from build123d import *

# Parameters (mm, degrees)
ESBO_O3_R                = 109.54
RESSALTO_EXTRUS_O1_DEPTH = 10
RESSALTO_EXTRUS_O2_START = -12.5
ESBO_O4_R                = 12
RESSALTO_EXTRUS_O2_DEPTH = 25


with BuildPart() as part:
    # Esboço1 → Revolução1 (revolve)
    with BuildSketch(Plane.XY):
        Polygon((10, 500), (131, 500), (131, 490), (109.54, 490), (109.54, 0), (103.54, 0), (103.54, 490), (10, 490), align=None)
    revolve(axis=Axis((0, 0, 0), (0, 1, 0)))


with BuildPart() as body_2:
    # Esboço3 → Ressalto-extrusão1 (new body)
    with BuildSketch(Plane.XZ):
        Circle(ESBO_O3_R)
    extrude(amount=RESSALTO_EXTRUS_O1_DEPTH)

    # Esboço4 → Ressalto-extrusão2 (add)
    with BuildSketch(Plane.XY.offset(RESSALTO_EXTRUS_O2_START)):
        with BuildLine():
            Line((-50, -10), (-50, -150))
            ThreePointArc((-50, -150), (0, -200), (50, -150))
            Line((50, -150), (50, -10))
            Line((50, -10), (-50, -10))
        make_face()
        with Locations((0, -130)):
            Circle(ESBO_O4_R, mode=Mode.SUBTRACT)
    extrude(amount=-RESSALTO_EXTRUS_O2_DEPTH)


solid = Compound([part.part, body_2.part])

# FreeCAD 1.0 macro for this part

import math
import FreeCAD as App
import Part
import Sketcher

V = App.Vector


def add_polygon(sketch, points):
    """Adds a closed chain of lines whose ends are joined by coincident constraints."""
    first, n = sketch.GeometryCount, len(points)
    for a, b in zip(points, points[1:] + points[:1]):
        sketch.addGeometry(Part.LineSegment(App.Vector(*a, 0), App.Vector(*b, 0)), False)
    for i in range(n):
        sketch.addConstraint(Sketcher.Constraint("Coincident", first + i, 2, first + (i + 1) % n, 1))

doc = App.newDocument("Part")
body = doc.addObject("PartDesign::Body", "Body")

# Sketch on XY plane
sketch1 = body.newObject("Sketcher::SketchObject", "Sketch")
sketch1.AttachmentSupport = (doc.getObject("XY_Plane"), [""])
sketch1.MapMode = "FlatFace"
add_polygon(sketch1, [(131, 500), (10, 500), (10, 490), (104, 490), (104, 0), (110, 0), (110, 490), (131, 490)])  # lines 0-7
sketch1.addConstraint([
    Sketcher.Constraint("Horizontal", 0),
    Sketcher.Constraint("Vertical", 1),
    Sketcher.Constraint("Horizontal", 2),
    Sketcher.Constraint("Vertical", 3),
    Sketcher.Constraint("Horizontal", 4),
    Sketcher.Constraint("Vertical", 5),
    Sketcher.Constraint("Horizontal", 6),
    Sketcher.Constraint("Vertical", 7),
    Sketcher.Constraint("PointOnObject", 3, 2, -1),
    Sketcher.Constraint("Horizontal", 2, 2, 5, 2),
    Sketcher.Constraint("DistanceX", 0, 2, 0, 1, 121.0),
    Sketcher.Constraint("DistanceX", 4, 1, 4, 2, 6.0),
    Sketcher.Constraint("DistanceY", 1, 2, 1, 1, 10.0),
    Sketcher.Constraint("DistanceY", 3, 2, 3, 1, 490.0),
    Sketcher.Constraint("DistanceX", -1, 1, 0, 2, 10.0),
    Sketcher.Constraint("DistanceX", 2, 1, 2, 2, 93.54),
])
revolution = body.newObject("PartDesign::Revolution", "Revolution")
revolution.Profile = sketch1
revolution.ReferenceAxis = (sketch1, ["V_Axis"])
revolution.Angle = 360
body2 = doc.addObject("PartDesign::Body", "Body001")

# Sketch on XZ plane
sketch2 = body2.newObject("Sketcher::SketchObject", "Sketch001")
sketch2.AttachmentSupport = (doc.getObject("XZ_Plane001"), [""])
sketch2.MapMode = "FlatFace"
sketch2.addGeometry(Part.Circle(V(0, 0, 0), V(0, 0, 1), 110), False)
sketch2.addConstraint([
    Sketcher.Constraint("Coincident", 0, 3, -1, 1),
    Sketcher.Constraint("Diameter", 0, 219.08),
])
pad1 = body2.newObject("PartDesign::Pad", "Pad")
pad1.Profile = sketch2
pad1.Length = 10

# Sketch on XY plane
sketch3 = body2.newObject("Sketcher::SketchObject", "Sketch002")
sketch3.AttachmentSupport = (doc.getObject("XY_Plane001"), [""])
sketch3.MapMode = "FlatFace"
sketch3.AttachmentOffset = App.Placement(V(0, 0, -12.5), App.Rotation())
sketch3.addGeometry([
    Part.LineSegment(V(-50, -10, 0), V(-50, -150, 0)),  # 0
    Part.ArcOfCircle(Part.Circle(V(0, -150, 0), V(0, 0, 1), 50), math.radians(180), math.radians(360)),  # 1
    Part.LineSegment(V(50, -150, 0), V(50, -10, 0)),  # 2
    Part.LineSegment(V(50, -10, 0), V(-50, -10, 0)),  # 3
    Part.Circle(V(0, -130, 0), V(0, 0, 1), 12),  # 4
], False)
sketch3.addConstraint([
    Sketcher.Constraint("Tangent", 0, 2, 1, 1),
    Sketcher.Constraint("Tangent", 1, 2, 2, 1),
    Sketcher.Constraint("Coincident", 2, 2, 3, 1),
    Sketcher.Constraint("Coincident", 3, 2, 0, 1),
    Sketcher.Constraint("Vertical", 0),
    Sketcher.Constraint("Vertical", 2),
    Sketcher.Constraint("Horizontal", 3),
    Sketcher.Constraint("PointOnObject", 1, 3, -2),
    Sketcher.Constraint("PointOnObject", 4, 3, -2),
    Sketcher.Constraint("Diameter", 4, 24.0),
    Sketcher.Constraint("Radius", 1, 50.0),
    Sketcher.Constraint("DistanceY", 0, 2, 0, 1, 140.0),
    Sketcher.Constraint("DistanceY", 1, 3, -1, 1, 150.0),
    Sketcher.Constraint("DistanceY", 4, 3, -1, 1, 130.0),
])
pad2 = body2.newObject("PartDesign::Pad", "Pad001")
pad2.Profile = sketch3
pad2.Length = 25
pad2.Reversed = True

doc.recompute()
